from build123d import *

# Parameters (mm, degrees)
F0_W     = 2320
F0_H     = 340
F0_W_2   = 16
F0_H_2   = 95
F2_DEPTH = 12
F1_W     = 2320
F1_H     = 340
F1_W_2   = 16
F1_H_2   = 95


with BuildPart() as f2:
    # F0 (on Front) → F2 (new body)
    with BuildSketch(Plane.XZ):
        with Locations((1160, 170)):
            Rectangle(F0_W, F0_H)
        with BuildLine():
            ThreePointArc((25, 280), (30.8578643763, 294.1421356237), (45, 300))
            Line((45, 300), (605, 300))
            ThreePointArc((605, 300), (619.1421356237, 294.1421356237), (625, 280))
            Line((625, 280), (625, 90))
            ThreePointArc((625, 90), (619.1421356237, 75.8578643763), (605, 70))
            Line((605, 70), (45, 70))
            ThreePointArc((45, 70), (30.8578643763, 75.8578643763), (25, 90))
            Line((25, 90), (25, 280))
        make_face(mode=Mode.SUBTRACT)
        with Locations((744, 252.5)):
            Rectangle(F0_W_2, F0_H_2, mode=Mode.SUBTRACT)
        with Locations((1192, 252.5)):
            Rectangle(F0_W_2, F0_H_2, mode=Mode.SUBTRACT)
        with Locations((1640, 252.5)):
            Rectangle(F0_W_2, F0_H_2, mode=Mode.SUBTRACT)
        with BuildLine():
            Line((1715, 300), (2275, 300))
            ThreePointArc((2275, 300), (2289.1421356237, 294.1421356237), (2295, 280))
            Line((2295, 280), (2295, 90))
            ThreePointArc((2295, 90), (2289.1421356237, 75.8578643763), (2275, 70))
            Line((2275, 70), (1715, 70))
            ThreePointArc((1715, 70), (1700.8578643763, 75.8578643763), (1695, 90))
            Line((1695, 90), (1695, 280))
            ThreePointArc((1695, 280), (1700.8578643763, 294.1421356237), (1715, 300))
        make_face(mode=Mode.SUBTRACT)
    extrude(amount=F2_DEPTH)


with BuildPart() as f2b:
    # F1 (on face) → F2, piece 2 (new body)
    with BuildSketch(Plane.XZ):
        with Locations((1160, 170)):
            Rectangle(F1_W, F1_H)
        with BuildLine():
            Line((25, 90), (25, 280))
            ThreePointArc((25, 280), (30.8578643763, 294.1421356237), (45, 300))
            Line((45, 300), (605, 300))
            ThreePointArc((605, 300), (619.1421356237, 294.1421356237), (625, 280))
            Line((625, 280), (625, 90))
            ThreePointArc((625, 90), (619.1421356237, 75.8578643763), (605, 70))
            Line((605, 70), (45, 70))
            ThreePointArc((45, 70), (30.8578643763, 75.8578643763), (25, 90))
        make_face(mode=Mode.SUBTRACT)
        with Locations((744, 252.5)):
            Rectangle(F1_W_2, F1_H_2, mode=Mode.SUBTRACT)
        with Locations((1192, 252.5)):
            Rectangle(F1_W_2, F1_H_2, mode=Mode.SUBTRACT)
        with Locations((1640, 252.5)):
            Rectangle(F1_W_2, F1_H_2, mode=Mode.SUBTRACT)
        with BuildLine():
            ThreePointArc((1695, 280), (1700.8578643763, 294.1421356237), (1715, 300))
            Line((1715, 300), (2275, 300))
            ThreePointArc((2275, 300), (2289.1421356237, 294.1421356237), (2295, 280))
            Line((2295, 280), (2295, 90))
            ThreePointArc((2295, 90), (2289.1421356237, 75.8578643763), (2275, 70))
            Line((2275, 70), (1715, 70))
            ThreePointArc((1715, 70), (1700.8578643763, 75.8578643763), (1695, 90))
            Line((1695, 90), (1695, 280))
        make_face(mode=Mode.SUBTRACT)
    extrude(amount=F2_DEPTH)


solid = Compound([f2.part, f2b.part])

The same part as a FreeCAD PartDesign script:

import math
import FreeCAD as App
import Part
import Sketcher
from FreeCAD import Vector


def add_polygon(sketch, points):
    """Adds a closed chain of lines whose ends are joined by coincident constraints."""
    first, n = sketch.GeometryCount, len(points)
    for a, b in zip(points, points[1:] + points[:1]):
        sketch.addGeometry(Part.LineSegment(App.Vector(*a, 0), App.Vector(*b, 0)), False)
    for i in range(n):
        sketch.addConstraint(Sketcher.Constraint("Coincident", first + i, 2, first + (i + 1) % n, 1))

doc = App.newDocument("Part")
body = doc.addObject("PartDesign::Body", "Body")

# Sketch on XZ plane
sketch1 = body.newObject("Sketcher::SketchObject", "Sketch")
sketch1.AttachmentSupport = (doc.getObject("XZ_Plane"), [""])
sketch1.MapMode = "FlatFace"
add_polygon(sketch1, [(0, 340), (0, 0), (2320, 0), (2320, 340)])  # lines 0-3
sketch1.addGeometry(Part.ArcOfCircle(Part.Circle(Vector(1715, 280, 0), Vector(0, 0, 1), 20), math.radians(90), math.radians(180)), False)  # 4
sketch1.addGeometry(Part.LineSegment(Vector(1715, 300, 0), Vector(2275, 300, 0)), False)  # 5
sketch1.addGeometry(Part.ArcOfCircle(Part.Circle(Vector(2275, 280, 0), Vector(0, 0, 1), 20), math.radians(0), math.radians(90)), False)  # 6
sketch1.addGeometry(Part.LineSegment(Vector(2295, 280, 0), Vector(2295, 90, 0)), False)  # 7
sketch1.addGeometry(Part.ArcOfCircle(Part.Circle(Vector(2275, 90, 0), Vector(0, 0, 1), 20), math.radians(-90), math.radians(0)), False)  # 8
sketch1.addGeometry(Part.LineSegment(Vector(2275, 70, 0), Vector(1715, 70, 0)), False)  # 9
sketch1.addGeometry(Part.ArcOfCircle(Part.Circle(Vector(1715, 90, 0), Vector(0, 0, 1), 20), math.radians(180), math.radians(270)), False)  # 10
sketch1.addGeometry(Part.LineSegment(Vector(1695, 90, 0), Vector(1695, 280, 0)), False)  # 11
sketch1.addGeometry(Part.LineSegment(Vector(25, 90, 0), Vector(25, 280, 0)), False)  # 12
sketch1.addGeometry(Part.ArcOfCircle(Part.Circle(Vector(45, 280, 0), Vector(0, 0, 1), 20), math.radians(90), math.radians(180)), False)  # 13
sketch1.addGeometry(Part.LineSegment(Vector(45, 300, 0), Vector(605, 300, 0)), False)  # 14
sketch1.addGeometry(Part.ArcOfCircle(Part.Circle(Vector(605, 280, 0), Vector(0, 0, 1), 20), math.radians(0), math.radians(90)), False)  # 15
sketch1.addGeometry(Part.LineSegment(Vector(625, 280, 0), Vector(625, 90, 0)), False)  # 16
sketch1.addGeometry(Part.ArcOfCircle(Part.Circle(Vector(605, 90, 0), Vector(0, 0, 1), 20), math.radians(-90), math.radians(0)), False)  # 17
sketch1.addGeometry(Part.LineSegment(Vector(605, 70, 0), Vector(45, 70, 0)), False)  # 18
sketch1.addGeometry(Part.ArcOfCircle(Part.Circle(Vector(45, 90, 0), Vector(0, 0, 1), 20), math.radians(180), math.radians(270)), False)  # 19
add_polygon(sketch1, [(752, 205), (736, 205), (736, 300), (752, 300)])  # lines 20-23
add_polygon(sketch1, [(1200, 205), (1184, 205), (1184, 300), (1200, 300)])  # lines 24-27
add_polygon(sketch1, [(1648, 205), (1632, 205), (1632, 300), (1648, 300)])  # lines 28-31
sketch1.addConstraint([
    Sketcher.Constraint("Tangent", 4, 1, 5, 1),
    Sketcher.Constraint("Tangent", 5, 2, 6, 2),
    Sketcher.Constraint("Tangent", 6, 1, 7, 1),
    Sketcher.Constraint("Tangent", 7, 2, 8, 2),
    Sketcher.Constraint("Tangent", 8, 1, 9, 1),
    Sketcher.Constraint("Tangent", 9, 2, 10, 2),
    Sketcher.Constraint("Tangent", 10, 1, 11, 1),
    Sketcher.Constraint("Tangent", 11, 2, 4, 2),
    Sketcher.Constraint("Tangent", 12, 2, 13, 2),
    Sketcher.Constraint("Tangent", 13, 1, 14, 1),
    Sketcher.Constraint("Tangent", 14, 2, 15, 2),
    Sketcher.Constraint("Tangent", 15, 1, 16, 1),
    Sketcher.Constraint("Tangent", 16, 2, 17, 2),
    Sketcher.Constraint("Tangent", 17, 1, 18, 1),
    Sketcher.Constraint("Tangent", 18, 2, 19, 2),
    Sketcher.Constraint("Tangent", 19, 1, 12, 1),
    Sketcher.Constraint("Vertical", 0),
    Sketcher.Constraint("Horizontal", 1),
    Sketcher.Constraint("Vertical", 2),
    Sketcher.Constraint("Horizontal", 3),
    Sketcher.Constraint("Horizontal", 5),
    Sketcher.Constraint("Vertical", 7),
    Sketcher.Constraint("Horizontal", 9),
    Sketcher.Constraint("Vertical", 11),
    Sketcher.Constraint("Vertical", 12),
    Sketcher.Constraint("Horizontal", 14),
    Sketcher.Constraint("Vertical", 16),
    Sketcher.Constraint("Horizontal", 18),
    Sketcher.Constraint("Horizontal", 20),
    Sketcher.Constraint("Vertical", 21),
    Sketcher.Constraint("Horizontal", 22),
    Sketcher.Constraint("Vertical", 23),
    Sketcher.Constraint("Horizontal", 24),
    Sketcher.Constraint("Vertical", 25),
    Sketcher.Constraint("Horizontal", 26),
    Sketcher.Constraint("Vertical", 27),
    Sketcher.Constraint("Horizontal", 28),
    Sketcher.Constraint("Vertical", 29),
    Sketcher.Constraint("Horizontal", 30),
    Sketcher.Constraint("Vertical", 31),
    Sketcher.Constraint("Coincident", 0, 2, -1, 1),
    Sketcher.Constraint("Equal", 4, 6),
    Sketcher.Constraint("Equal", 6, 8),
    Sketcher.Constraint("Equal", 8, 10),
    Sketcher.Constraint("Equal", 10, 13),
    Sketcher.Constraint("Equal", 13, 15),
    Sketcher.Constraint("Equal", 15, 17),
    Sketcher.Constraint("Equal", 17, 19),
    Sketcher.Constraint("Horizontal", 6, 3, 13, 3),
    Sketcher.Constraint("Horizontal", 10, 3, 17, 3),
    Sketcher.Constraint("Horizontal", 14, 2, 21, 2),
    Sketcher.Constraint("Horizontal", 23, 2, 24, 2),
    Sketcher.Constraint("Horizontal", 22, 2, 25, 2),
    Sketcher.Constraint("Horizontal", 27, 2, 28, 2),
    Sketcher.Constraint("Horizontal", 26, 2, 29, 2),
    Sketcher.Constraint("Equal", 9, 14),
    Sketcher.Constraint("Equal", 22, 24),
    Sketcher.Constraint("Equal", 26, 28),
    Sketcher.Constraint("Radius", 4, 20.0),
    Sketcher.Constraint("DistanceX", 1, 1, 1, 2, 2320.0),
    Sketcher.Constraint("DistanceX", 5, 1, 5, 2, 560.0),
    Sketcher.Constraint("DistanceX", 20, 2, 20, 1, 16.0),
    Sketcher.Constraint("DistanceY", 0, 2, 0, 1, 340.0),
    Sketcher.Constraint("DistanceY", 7, 2, 7, 1, 190.0),
    Sketcher.Constraint("DistanceY", 21, 1, 21, 2, 95.0),
    Sketcher.Constraint("DistanceX", -1, 1, 4, 3, 1715.0),
    Sketcher.Constraint("DistanceY", -1, 1, 4, 3, 280.0),
    Sketcher.Constraint("DistanceX", -1, 1, 13, 3, 45.0),
    Sketcher.Constraint("DistanceX", -1, 1, 20, 2, 736.0),
    Sketcher.Constraint("DistanceX", -1, 1, 24, 2, 1184.0),
    Sketcher.Constraint("DistanceX", -1, 1, 28, 2, 1632.0),
])
pad1 = body.newObject("PartDesign::Pad", "Pad")
pad1.Profile = sketch1
pad1.Length = 12
body2 = doc.addObject("PartDesign::Body", "Body001")

# Sketch on XZ plane
sketch2 = body2.newObject("Sketcher::SketchObject", "Sketch001")
sketch2.AttachmentSupport = (doc.getObject("XZ_Plane001"), [""])
sketch2.MapMode = "FlatFace"
add_polygon(sketch2, [(0, 340), (0, 0), (2320, 0), (2320, 340)])  # lines 0-3
sketch2.addGeometry(Part.LineSegment(Vector(1695, 90, 0), Vector(1695, 280, 0)), False)  # 4
sketch2.addGeometry(Part.ArcOfCircle(Part.Circle(Vector(1715, 280, 0), Vector(0, 0, 1), 20), math.radians(90), math.radians(180)), False)  # 5
sketch2.addGeometry(Part.LineSegment(Vector(1715, 300, 0), Vector(2275, 300, 0)), False)  # 6
sketch2.addGeometry(Part.ArcOfCircle(Part.Circle(Vector(2275, 280, 0), Vector(0, 0, 1), 20), math.radians(0), math.radians(90)), False)  # 7
sketch2.addGeometry(Part.LineSegment(Vector(2295, 280, 0), Vector(2295, 90, 0)), False)  # 8
sketch2.addGeometry(Part.ArcOfCircle(Part.Circle(Vector(2275, 90, 0), Vector(0, 0, 1), 20), math.radians(-90), math.radians(0)), False)  # 9
sketch2.addGeometry(Part.LineSegment(Vector(2275, 70, 0), Vector(1715, 70, 0)), False)  # 10
sketch2.addGeometry(Part.ArcOfCircle(Part.Circle(Vector(1715, 90, 0), Vector(0, 0, 1), 20), math.radians(180), math.radians(270)), False)  # 11
sketch2.addGeometry(Part.ArcOfCircle(Part.Circle(Vector(45, 90, 0), Vector(0, 0, 1), 20), math.radians(180), math.radians(270)), False)  # 12
sketch2.addGeometry(Part.LineSegment(Vector(25, 90, 0), Vector(25, 280, 0)), False)  # 13
sketch2.addGeometry(Part.ArcOfCircle(Part.Circle(Vector(45, 280, 0), Vector(0, 0, 1), 20), math.radians(90), math.radians(180)), False)  # 14
sketch2.addGeometry(Part.LineSegment(Vector(45, 300, 0), Vector(605, 300, 0)), False)  # 15
sketch2.addGeometry(Part.ArcOfCircle(Part.Circle(Vector(605, 280, 0), Vector(0, 0, 1), 20), math.radians(0), math.radians(90)), False)  # 16
sketch2.addGeometry(Part.LineSegment(Vector(625, 280, 0), Vector(625, 90, 0)), False)  # 17
sketch2.addGeometry(Part.ArcOfCircle(Part.Circle(Vector(605, 90, 0), Vector(0, 0, 1), 20), math.radians(-90), math.radians(0)), False)  # 18
sketch2.addGeometry(Part.LineSegment(Vector(605, 70, 0), Vector(45, 70, 0)), False)  # 19
add_polygon(sketch2, [(752, 205), (736, 205), (736, 300), (752, 300)])  # lines 20-23
add_polygon(sketch2, [(1200, 205), (1184, 205), (1184, 300), (1200, 300)])  # lines 24-27
add_polygon(sketch2, [(1648, 205), (1632, 205), (1632, 300), (1648, 300)])  # lines 28-31
sketch2.addConstraint([
    Sketcher.Constraint("Tangent", 4, 2, 5, 2),
    Sketcher.Constraint("Tangent", 5, 1, 6, 1),
    Sketcher.Constraint("Tangent", 6, 2, 7, 2),
    Sketcher.Constraint("Tangent", 7, 1, 8, 1),
    Sketcher.Constraint("Tangent", 8, 2, 9, 2),
    Sketcher.Constraint("Tangent", 9, 1, 10, 1),
    Sketcher.Constraint("Tangent", 10, 2, 11, 2),
    Sketcher.Constraint("Tangent", 11, 1, 4, 1),
    Sketcher.Constraint("Tangent", 12, 1, 13, 1),
    Sketcher.Constraint("Tangent", 13, 2, 14, 2),
    Sketcher.Constraint("Tangent", 14, 1, 15, 1),
    Sketcher.Constraint("Tangent", 15, 2, 16, 2),
    Sketcher.Constraint("Tangent", 16, 1, 17, 1),
    Sketcher.Constraint("Tangent", 17, 2, 18, 2),
    Sketcher.Constraint("Tangent", 18, 1, 19, 1),
    Sketcher.Constraint("Tangent", 19, 2, 12, 2),
    Sketcher.Constraint("Vertical", 0),
    Sketcher.Constraint("Horizontal", 1),
    Sketcher.Constraint("Vertical", 2),
    Sketcher.Constraint("Horizontal", 3),
    Sketcher.Constraint("Vertical", 4),
    Sketcher.Constraint("Horizontal", 6),
    Sketcher.Constraint("Vertical", 8),
    Sketcher.Constraint("Horizontal", 10),
    Sketcher.Constraint("Vertical", 13),
    Sketcher.Constraint("Horizontal", 15),
    Sketcher.Constraint("Vertical", 17),
    Sketcher.Constraint("Horizontal", 19),
    Sketcher.Constraint("Horizontal", 20),
    Sketcher.Constraint("Vertical", 21),
    Sketcher.Constraint("Horizontal", 22),
    Sketcher.Constraint("Vertical", 23),
    Sketcher.Constraint("Horizontal", 24),
    Sketcher.Constraint("Vertical", 25),
    Sketcher.Constraint("Horizontal", 26),
    Sketcher.Constraint("Vertical", 27),
    Sketcher.Constraint("Horizontal", 28),
    Sketcher.Constraint("Vertical", 29),
    Sketcher.Constraint("Horizontal", 30),
    Sketcher.Constraint("Vertical", 31),
    Sketcher.Constraint("Coincident", 0, 2, -1, 1),
    Sketcher.Constraint("Equal", 5, 7),
    Sketcher.Constraint("Equal", 7, 9),
    Sketcher.Constraint("Equal", 9, 11),
    Sketcher.Constraint("Equal", 11, 12),
    Sketcher.Constraint("Equal", 12, 14),
    Sketcher.Constraint("Equal", 14, 16),
    Sketcher.Constraint("Equal", 16, 18),
    Sketcher.Constraint("Horizontal", 11, 3, 12, 3),
    Sketcher.Constraint("Horizontal", 7, 3, 14, 3),
    Sketcher.Constraint("Horizontal", 15, 2, 21, 2),
    Sketcher.Constraint("Horizontal", 23, 2, 24, 2),
    Sketcher.Constraint("Horizontal", 22, 2, 25, 2),
    Sketcher.Constraint("Horizontal", 27, 2, 28, 2),
    Sketcher.Constraint("Horizontal", 26, 2, 29, 2),
    Sketcher.Constraint("Equal", 10, 15),
    Sketcher.Constraint("Equal", 22, 24),
    Sketcher.Constraint("Equal", 26, 28),
    Sketcher.Constraint("Radius", 5, 20.0),
    Sketcher.Constraint("DistanceX", 1, 1, 1, 2, 2320.0),
    Sketcher.Constraint("DistanceX", 6, 1, 6, 2, 560.0),
    Sketcher.Constraint("DistanceX", 20, 2, 20, 1, 16.0),
    Sketcher.Constraint("DistanceY", 0, 2, 0, 1, 340.0),
    Sketcher.Constraint("DistanceY", 4, 1, 4, 2, 190.0),
    Sketcher.Constraint("DistanceY", 21, 1, 21, 2, 95.0),
    Sketcher.Constraint("DistanceX", -1, 1, 5, 3, 1715.0),
    Sketcher.Constraint("DistanceY", -1, 1, 5, 3, 280.0),
    Sketcher.Constraint("DistanceX", -1, 1, 12, 3, 45.0),
    Sketcher.Constraint("DistanceX", -1, 1, 20, 2, 736.0),
    Sketcher.Constraint("DistanceX", -1, 1, 24, 2, 1184.0),
    Sketcher.Constraint("DistanceX", -1, 1, 28, 2, 1632.0),
])
pad2 = body2.newObject("PartDesign::Pad", "Pad001")
pad2.Profile = sketch2
pad2.Length = 12

doc.recompute()
